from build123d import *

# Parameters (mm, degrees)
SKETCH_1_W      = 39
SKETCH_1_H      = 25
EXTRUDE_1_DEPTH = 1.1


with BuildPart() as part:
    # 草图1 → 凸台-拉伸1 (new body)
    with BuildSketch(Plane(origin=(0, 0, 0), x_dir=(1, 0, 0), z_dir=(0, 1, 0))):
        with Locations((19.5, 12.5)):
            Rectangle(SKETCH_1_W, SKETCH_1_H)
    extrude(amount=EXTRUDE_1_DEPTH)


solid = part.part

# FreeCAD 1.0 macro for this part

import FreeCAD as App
import Part
import Sketcher

V = App.Vector


def add_polygon(sketch, points):
    """Adds a closed chain of lines whose ends are joined by coincident constraints."""
    first, n = sketch.GeometryCount, len(points)
    for a, b in zip(points, points[1:] + points[:1]):
        sketch.addGeometry(Part.LineSegment(App.Vector(*a, 0), App.Vector(*b, 0)), False)
    for i in range(n):
        sketch.addConstraint(Sketcher.Constraint("Coincident", first + i, 2, first + (i + 1) % n, 1))

doc = App.newDocument("Part")
params = doc.addObject("Spreadsheet::Sheet", "Params")
for row, (alias, value) in enumerate([
    ("sketch1_width", "39 mm"),
    ("sketch1_height", "25 mm"),
    ("pad1_length", "1.1 mm"),
], start=1):
    params.set(f"A{row}", alias)
    params.set(f"B{row}", "=" + value)
    params.setAlias(f"B{row}", alias)

body = doc.addObject("PartDesign::Body", "Body")

sketch1 = doc.addObject("Sketcher::SketchObject", "Sketch")
body.addObject(sketch1)
sketch1.AttachmentSupport = (doc.XZ_Plane, [""])
sketch1.MapMode = "FlatFace"
add_polygon(sketch1, [(0, -25), (0, 0), (39, 0), (39, -25)])
sketch1.addConstraint([
    Sketcher.Constraint("Vertical", 0),
    Sketcher.Constraint("Horizontal", 1),
    Sketcher.Constraint("Vertical", 2),
    Sketcher.Constraint("Horizontal", 3),
    Sketcher.Constraint("Coincident", 0, 2, -1, 1),
    Sketcher.Constraint("DistanceX", 1, 1, 1, 2, 39.0),
    Sketcher.Constraint("DistanceY", 0, 1, 0, 2, 25.0),
])
sketch1.setExpression("Constraints[9]", "Params.sketch1_width")
sketch1.setExpression("Constraints[10]", "Params.sketch1_height")
pad1 = doc.addObject("PartDesign::Pad", "Pad")
body.addObject(pad1)
pad1.Profile = sketch1
pad1.setExpression("Length", "Params.pad1_length")
pad1.Reversed = True

doc.recompute()
